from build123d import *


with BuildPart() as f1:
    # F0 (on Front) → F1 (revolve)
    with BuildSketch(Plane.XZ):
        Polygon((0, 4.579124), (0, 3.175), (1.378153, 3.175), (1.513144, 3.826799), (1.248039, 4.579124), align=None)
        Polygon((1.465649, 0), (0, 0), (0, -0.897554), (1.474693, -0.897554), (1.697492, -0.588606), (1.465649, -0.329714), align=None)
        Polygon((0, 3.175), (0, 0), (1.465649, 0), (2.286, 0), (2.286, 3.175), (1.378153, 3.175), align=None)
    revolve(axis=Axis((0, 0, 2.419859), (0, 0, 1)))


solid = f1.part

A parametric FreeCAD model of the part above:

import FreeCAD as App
import Part
import Sketcher
from FreeCAD import Vector
Q = App.Units.Quantity

doc = App.newDocument("Part")
body = doc.addObject("PartDesign::Body", "Body")

# Sketch on XZ plane
sketch1 = doc.addObject("Sketcher::SketchObject", "Sketch")
body.addObject(sketch1)
sketch1.AttachmentSupport = (doc.XZ_Plane, [""])
sketch1.MapMode = "FlatFace"
sketch1.addGeometry([
    Part.LineSegment(Vector(0, 4.58, 0), Vector(0, -0.9, 0)),  # 0
    Part.LineSegment(Vector(0, -0.9, 0), Vector(1.47, -0.9, 0)),  # 1
    Part.LineSegment(Vector(1.47, -0.9, 0), Vector(1.7, -0.59, 0)),  # 2
    Part.LineSegment(Vector(1.7, -0.59, 0), Vector(1.47, -0.33, 0)),  # 3
    Part.LineSegment(Vector(1.47, -0.33, 0), Vector(1.47, 0, 0)),  # 4
    Part.LineSegment(Vector(1.47, 0, 0), Vector(2.29, 0, 0)),  # 5
    Part.LineSegment(Vector(2.29, 0, 0), Vector(2.29, 3.17, 0)),  # 6
    Part.LineSegment(Vector(2.29, 3.17, 0), Vector(1.38, 3.17, 0)),  # 7
    Part.LineSegment(Vector(1.38, 3.17, 0), Vector(1.51, 3.83, 0)),  # 8
    Part.LineSegment(Vector(1.51, 3.83, 0), Vector(1.25, 4.58, 0)),  # 9
    Part.LineSegment(Vector(1.25, 4.58, 0), Vector(0, 4.58, 0)),  # 10
], False)
sketch1.addConstraint([
    Sketcher.Constraint("Coincident", 0, 2, 1, 1),
    Sketcher.Constraint("Coincident", 1, 2, 2, 1),
    Sketcher.Constraint("Coincident", 2, 2, 3, 1),
    Sketcher.Constraint("Coincident", 3, 2, 4, 1),
    Sketcher.Constraint("Coincident", 4, 2, 5, 1),
    Sketcher.Constraint("Coincident", 5, 2, 6, 1),
    Sketcher.Constraint("Coincident", 6, 2, 7, 1),
    Sketcher.Constraint("Coincident", 7, 2, 8, 1),
    Sketcher.Constraint("Coincident", 8, 2, 9, 1),
    Sketcher.Constraint("Coincident", 9, 2, 10, 1),
    Sketcher.Constraint("Coincident", 10, 2, 0, 1),
    Sketcher.Constraint("Vertical", 0),
    Sketcher.Constraint("Horizontal", 1),
    Sketcher.Constraint("Vertical", 4),
    Sketcher.Constraint("Horizontal", 5),
    Sketcher.Constraint("Vertical", 6),
    Sketcher.Constraint("Horizontal", 7),
    Sketcher.Constraint("Horizontal", 10),
    Sketcher.Constraint("PointOnObject", 0, 2, -2),
    Sketcher.Constraint("PointOnObject", 4, 2, -1),
    Sketcher.Constraint("DistanceY", 6, 1, 6, 2, Q("0.125 in")),
    Sketcher.Constraint("DistanceX", -1, 1, 5, 2, Q("0.09 in")),
    Sketcher.Constraint("DistanceX", 5, 1, 5, 2, Q("0.820351 mm")),
    Sketcher.Constraint("DistanceX", 10, 2, 10, 1, Q("1.248039 mm")),
    Sketcher.Constraint("DistanceY", -1, 1, 8, 2, Q("3.826799 mm")),
    Sketcher.Constraint("DistanceX", 1, 2, 2, 2, Q("0.222799 mm")),
    Sketcher.Constraint("Distance", 3, Q("0.347529 mm")),
    Sketcher.Constraint("Distance", 8, Q("0.665631 mm")),
    Sketcher.Constraint("DistanceX", 1, 1, 1, 2, Q("1.474693 mm")),
    Sketcher.Constraint("DistanceX", 7, 2, 7, 1, Q("0.907847 mm")),
    Sketcher.Constraint("DistanceY", 0, 2, 0, 1, Q("5.476678 mm")),
    Sketcher.Constraint("DistanceY", 4, 1, 4, 2, Q("0.329714 mm")),
    Sketcher.Constraint("DistanceY", 1, 2, 3, 2, Q("0.56784 mm")),
])
revolution = doc.addObject("PartDesign::Revolution", "Revolution")
body.addObject(revolution)
revolution.Profile = sketch1
revolution.ReferenceAxis = (sketch1, ["V_Axis"])
revolution.Angle = 360

doc.recompute()
